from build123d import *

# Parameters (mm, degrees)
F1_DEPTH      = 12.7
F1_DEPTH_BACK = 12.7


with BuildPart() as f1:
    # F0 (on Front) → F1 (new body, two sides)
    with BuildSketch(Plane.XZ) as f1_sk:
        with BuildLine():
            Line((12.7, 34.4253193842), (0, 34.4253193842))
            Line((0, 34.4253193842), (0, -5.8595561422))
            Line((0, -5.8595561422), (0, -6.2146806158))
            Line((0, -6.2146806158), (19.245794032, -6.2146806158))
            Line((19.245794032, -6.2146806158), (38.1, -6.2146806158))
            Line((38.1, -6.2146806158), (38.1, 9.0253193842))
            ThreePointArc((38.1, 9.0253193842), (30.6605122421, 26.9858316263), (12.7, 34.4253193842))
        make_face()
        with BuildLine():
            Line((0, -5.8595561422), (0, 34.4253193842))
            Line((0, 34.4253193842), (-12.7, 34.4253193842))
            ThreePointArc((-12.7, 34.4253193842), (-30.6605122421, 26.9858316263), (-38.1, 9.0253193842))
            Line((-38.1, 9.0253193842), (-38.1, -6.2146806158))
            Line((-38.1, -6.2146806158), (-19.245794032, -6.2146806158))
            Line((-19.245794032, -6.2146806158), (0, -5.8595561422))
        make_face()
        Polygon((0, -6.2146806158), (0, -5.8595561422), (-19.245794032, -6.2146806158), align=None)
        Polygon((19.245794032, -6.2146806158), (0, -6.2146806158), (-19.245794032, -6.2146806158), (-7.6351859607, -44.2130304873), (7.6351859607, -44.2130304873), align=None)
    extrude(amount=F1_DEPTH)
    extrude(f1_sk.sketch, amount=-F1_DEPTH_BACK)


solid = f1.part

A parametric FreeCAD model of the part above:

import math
import FreeCAD as App
import Part
import Sketcher
from FreeCAD import Vector
Q = App.Units.Quantity

doc = App.newDocument("Part")
body = doc.addObject("PartDesign::Body", "Body")

# Sketch on XZ plane
sketch1 = body.newObject("Sketcher::SketchObject", "Sketch")
sketch1.AttachmentSupport = (doc.getObject("XZ_Plane"), [""])
sketch1.MapMode = "FlatFace"
sketch1.addGeometry([
    Part.LineSegment(Vector(12.7, 34.425319, 0), Vector(-12.7, 34.425319, 0)),  # 0
    Part.ArcOfCircle(Part.Circle(Vector(-12.7, 9.025319, 0), Vector(0, 0, 1), 25.4), math.radians(90), math.radians(180)),  # 1
    Part.LineSegment(Vector(-38.1, 9.025319, 0), Vector(-38.1, -6.214681, 0)),  # 2
    Part.LineSegment(Vector(-38.1, -6.214681, 0), Vector(-19.245794, -6.214681, 0)),  # 3
    Part.LineSegment(Vector(-19.245794, -6.214681, 0), Vector(-7.635186, -44.21303, 0)),  # 4
    Part.LineSegment(Vector(-7.635186, -44.21303, 0), Vector(7.635186, -44.21303, 0)),  # 5
    Part.LineSegment(Vector(7.635186, -44.21303, 0), Vector(19.245794, -6.214681, 0)),  # 6
    Part.LineSegment(Vector(19.245794, -6.214681, 0), Vector(38.1, -6.214681, 0)),  # 7
    Part.LineSegment(Vector(38.1, -6.214681, 0), Vector(38.1, 9.025319, 0)),  # 8
    Part.ArcOfCircle(Part.Circle(Vector(12.7, 9.025319, 0), Vector(0, 0, 1), 25.4), math.radians(0), math.radians(90)),  # 9
], False)
sketch1.addConstraint([
    Sketcher.Constraint("Tangent", 0, 2, 1, 1),
    Sketcher.Constraint("Tangent", 1, 2, 2, 1),
    Sketcher.Constraint("Coincident", 2, 2, 3, 1),
    Sketcher.Constraint("Coincident", 3, 2, 4, 1),
    Sketcher.Constraint("Coincident", 4, 2, 5, 1),
    Sketcher.Constraint("Coincident", 5, 2, 6, 1),
    Sketcher.Constraint("Coincident", 6, 2, 7, 1),
    Sketcher.Constraint("Coincident", 7, 2, 8, 1),
    Sketcher.Constraint("Tangent", 8, 2, 9, 1),
    Sketcher.Constraint("Tangent", 9, 2, 0, 1),
    Sketcher.Constraint("Horizontal", 0),
    Sketcher.Constraint("Vertical", 2),
    Sketcher.Constraint("Horizontal", 3),
    Sketcher.Constraint("Horizontal", 5),
    Sketcher.Constraint("Horizontal", 7),
    Sketcher.Constraint("Vertical", 8),
    Sketcher.Constraint("Equal", 1, 9),
    Sketcher.Constraint("Symmetric", 3, 2, 6, 2, -2),
    Sketcher.Constraint("Equal", 3, 7),
    Sketcher.Constraint("Equal", 4, 6),
    Sketcher.Constraint("Radius", 1, Q("1 in")),
    Sketcher.Constraint("DistanceX", 0, 2, 0, 1, Q("1 in")),
    Sketcher.Constraint("DistanceY", 2, 2, 2, 1, Q("0.6 in")),
    Sketcher.Constraint("DistanceX", 5, 1, 5, 2, Q("15.270372 mm")),
    Sketcher.Constraint("DistanceX", 3, 1, 3, 2, Q("18.854206 mm")),
    Sketcher.Constraint("DistanceY", -1, 1, 1, 3, Q("9.025319 mm")),
    Sketcher.Constraint("DistanceY", 4, 2, -1, 1, Q("44.21303 mm")),
])
pad1 = body.newObject("PartDesign::Pad", "Pad")
pad1.Profile = sketch1
pad1.Type = "TwoLengths"
pad1.Length = Q("0.5 in")
pad1.Length2 = Q("0.5 in")

doc.recompute()
